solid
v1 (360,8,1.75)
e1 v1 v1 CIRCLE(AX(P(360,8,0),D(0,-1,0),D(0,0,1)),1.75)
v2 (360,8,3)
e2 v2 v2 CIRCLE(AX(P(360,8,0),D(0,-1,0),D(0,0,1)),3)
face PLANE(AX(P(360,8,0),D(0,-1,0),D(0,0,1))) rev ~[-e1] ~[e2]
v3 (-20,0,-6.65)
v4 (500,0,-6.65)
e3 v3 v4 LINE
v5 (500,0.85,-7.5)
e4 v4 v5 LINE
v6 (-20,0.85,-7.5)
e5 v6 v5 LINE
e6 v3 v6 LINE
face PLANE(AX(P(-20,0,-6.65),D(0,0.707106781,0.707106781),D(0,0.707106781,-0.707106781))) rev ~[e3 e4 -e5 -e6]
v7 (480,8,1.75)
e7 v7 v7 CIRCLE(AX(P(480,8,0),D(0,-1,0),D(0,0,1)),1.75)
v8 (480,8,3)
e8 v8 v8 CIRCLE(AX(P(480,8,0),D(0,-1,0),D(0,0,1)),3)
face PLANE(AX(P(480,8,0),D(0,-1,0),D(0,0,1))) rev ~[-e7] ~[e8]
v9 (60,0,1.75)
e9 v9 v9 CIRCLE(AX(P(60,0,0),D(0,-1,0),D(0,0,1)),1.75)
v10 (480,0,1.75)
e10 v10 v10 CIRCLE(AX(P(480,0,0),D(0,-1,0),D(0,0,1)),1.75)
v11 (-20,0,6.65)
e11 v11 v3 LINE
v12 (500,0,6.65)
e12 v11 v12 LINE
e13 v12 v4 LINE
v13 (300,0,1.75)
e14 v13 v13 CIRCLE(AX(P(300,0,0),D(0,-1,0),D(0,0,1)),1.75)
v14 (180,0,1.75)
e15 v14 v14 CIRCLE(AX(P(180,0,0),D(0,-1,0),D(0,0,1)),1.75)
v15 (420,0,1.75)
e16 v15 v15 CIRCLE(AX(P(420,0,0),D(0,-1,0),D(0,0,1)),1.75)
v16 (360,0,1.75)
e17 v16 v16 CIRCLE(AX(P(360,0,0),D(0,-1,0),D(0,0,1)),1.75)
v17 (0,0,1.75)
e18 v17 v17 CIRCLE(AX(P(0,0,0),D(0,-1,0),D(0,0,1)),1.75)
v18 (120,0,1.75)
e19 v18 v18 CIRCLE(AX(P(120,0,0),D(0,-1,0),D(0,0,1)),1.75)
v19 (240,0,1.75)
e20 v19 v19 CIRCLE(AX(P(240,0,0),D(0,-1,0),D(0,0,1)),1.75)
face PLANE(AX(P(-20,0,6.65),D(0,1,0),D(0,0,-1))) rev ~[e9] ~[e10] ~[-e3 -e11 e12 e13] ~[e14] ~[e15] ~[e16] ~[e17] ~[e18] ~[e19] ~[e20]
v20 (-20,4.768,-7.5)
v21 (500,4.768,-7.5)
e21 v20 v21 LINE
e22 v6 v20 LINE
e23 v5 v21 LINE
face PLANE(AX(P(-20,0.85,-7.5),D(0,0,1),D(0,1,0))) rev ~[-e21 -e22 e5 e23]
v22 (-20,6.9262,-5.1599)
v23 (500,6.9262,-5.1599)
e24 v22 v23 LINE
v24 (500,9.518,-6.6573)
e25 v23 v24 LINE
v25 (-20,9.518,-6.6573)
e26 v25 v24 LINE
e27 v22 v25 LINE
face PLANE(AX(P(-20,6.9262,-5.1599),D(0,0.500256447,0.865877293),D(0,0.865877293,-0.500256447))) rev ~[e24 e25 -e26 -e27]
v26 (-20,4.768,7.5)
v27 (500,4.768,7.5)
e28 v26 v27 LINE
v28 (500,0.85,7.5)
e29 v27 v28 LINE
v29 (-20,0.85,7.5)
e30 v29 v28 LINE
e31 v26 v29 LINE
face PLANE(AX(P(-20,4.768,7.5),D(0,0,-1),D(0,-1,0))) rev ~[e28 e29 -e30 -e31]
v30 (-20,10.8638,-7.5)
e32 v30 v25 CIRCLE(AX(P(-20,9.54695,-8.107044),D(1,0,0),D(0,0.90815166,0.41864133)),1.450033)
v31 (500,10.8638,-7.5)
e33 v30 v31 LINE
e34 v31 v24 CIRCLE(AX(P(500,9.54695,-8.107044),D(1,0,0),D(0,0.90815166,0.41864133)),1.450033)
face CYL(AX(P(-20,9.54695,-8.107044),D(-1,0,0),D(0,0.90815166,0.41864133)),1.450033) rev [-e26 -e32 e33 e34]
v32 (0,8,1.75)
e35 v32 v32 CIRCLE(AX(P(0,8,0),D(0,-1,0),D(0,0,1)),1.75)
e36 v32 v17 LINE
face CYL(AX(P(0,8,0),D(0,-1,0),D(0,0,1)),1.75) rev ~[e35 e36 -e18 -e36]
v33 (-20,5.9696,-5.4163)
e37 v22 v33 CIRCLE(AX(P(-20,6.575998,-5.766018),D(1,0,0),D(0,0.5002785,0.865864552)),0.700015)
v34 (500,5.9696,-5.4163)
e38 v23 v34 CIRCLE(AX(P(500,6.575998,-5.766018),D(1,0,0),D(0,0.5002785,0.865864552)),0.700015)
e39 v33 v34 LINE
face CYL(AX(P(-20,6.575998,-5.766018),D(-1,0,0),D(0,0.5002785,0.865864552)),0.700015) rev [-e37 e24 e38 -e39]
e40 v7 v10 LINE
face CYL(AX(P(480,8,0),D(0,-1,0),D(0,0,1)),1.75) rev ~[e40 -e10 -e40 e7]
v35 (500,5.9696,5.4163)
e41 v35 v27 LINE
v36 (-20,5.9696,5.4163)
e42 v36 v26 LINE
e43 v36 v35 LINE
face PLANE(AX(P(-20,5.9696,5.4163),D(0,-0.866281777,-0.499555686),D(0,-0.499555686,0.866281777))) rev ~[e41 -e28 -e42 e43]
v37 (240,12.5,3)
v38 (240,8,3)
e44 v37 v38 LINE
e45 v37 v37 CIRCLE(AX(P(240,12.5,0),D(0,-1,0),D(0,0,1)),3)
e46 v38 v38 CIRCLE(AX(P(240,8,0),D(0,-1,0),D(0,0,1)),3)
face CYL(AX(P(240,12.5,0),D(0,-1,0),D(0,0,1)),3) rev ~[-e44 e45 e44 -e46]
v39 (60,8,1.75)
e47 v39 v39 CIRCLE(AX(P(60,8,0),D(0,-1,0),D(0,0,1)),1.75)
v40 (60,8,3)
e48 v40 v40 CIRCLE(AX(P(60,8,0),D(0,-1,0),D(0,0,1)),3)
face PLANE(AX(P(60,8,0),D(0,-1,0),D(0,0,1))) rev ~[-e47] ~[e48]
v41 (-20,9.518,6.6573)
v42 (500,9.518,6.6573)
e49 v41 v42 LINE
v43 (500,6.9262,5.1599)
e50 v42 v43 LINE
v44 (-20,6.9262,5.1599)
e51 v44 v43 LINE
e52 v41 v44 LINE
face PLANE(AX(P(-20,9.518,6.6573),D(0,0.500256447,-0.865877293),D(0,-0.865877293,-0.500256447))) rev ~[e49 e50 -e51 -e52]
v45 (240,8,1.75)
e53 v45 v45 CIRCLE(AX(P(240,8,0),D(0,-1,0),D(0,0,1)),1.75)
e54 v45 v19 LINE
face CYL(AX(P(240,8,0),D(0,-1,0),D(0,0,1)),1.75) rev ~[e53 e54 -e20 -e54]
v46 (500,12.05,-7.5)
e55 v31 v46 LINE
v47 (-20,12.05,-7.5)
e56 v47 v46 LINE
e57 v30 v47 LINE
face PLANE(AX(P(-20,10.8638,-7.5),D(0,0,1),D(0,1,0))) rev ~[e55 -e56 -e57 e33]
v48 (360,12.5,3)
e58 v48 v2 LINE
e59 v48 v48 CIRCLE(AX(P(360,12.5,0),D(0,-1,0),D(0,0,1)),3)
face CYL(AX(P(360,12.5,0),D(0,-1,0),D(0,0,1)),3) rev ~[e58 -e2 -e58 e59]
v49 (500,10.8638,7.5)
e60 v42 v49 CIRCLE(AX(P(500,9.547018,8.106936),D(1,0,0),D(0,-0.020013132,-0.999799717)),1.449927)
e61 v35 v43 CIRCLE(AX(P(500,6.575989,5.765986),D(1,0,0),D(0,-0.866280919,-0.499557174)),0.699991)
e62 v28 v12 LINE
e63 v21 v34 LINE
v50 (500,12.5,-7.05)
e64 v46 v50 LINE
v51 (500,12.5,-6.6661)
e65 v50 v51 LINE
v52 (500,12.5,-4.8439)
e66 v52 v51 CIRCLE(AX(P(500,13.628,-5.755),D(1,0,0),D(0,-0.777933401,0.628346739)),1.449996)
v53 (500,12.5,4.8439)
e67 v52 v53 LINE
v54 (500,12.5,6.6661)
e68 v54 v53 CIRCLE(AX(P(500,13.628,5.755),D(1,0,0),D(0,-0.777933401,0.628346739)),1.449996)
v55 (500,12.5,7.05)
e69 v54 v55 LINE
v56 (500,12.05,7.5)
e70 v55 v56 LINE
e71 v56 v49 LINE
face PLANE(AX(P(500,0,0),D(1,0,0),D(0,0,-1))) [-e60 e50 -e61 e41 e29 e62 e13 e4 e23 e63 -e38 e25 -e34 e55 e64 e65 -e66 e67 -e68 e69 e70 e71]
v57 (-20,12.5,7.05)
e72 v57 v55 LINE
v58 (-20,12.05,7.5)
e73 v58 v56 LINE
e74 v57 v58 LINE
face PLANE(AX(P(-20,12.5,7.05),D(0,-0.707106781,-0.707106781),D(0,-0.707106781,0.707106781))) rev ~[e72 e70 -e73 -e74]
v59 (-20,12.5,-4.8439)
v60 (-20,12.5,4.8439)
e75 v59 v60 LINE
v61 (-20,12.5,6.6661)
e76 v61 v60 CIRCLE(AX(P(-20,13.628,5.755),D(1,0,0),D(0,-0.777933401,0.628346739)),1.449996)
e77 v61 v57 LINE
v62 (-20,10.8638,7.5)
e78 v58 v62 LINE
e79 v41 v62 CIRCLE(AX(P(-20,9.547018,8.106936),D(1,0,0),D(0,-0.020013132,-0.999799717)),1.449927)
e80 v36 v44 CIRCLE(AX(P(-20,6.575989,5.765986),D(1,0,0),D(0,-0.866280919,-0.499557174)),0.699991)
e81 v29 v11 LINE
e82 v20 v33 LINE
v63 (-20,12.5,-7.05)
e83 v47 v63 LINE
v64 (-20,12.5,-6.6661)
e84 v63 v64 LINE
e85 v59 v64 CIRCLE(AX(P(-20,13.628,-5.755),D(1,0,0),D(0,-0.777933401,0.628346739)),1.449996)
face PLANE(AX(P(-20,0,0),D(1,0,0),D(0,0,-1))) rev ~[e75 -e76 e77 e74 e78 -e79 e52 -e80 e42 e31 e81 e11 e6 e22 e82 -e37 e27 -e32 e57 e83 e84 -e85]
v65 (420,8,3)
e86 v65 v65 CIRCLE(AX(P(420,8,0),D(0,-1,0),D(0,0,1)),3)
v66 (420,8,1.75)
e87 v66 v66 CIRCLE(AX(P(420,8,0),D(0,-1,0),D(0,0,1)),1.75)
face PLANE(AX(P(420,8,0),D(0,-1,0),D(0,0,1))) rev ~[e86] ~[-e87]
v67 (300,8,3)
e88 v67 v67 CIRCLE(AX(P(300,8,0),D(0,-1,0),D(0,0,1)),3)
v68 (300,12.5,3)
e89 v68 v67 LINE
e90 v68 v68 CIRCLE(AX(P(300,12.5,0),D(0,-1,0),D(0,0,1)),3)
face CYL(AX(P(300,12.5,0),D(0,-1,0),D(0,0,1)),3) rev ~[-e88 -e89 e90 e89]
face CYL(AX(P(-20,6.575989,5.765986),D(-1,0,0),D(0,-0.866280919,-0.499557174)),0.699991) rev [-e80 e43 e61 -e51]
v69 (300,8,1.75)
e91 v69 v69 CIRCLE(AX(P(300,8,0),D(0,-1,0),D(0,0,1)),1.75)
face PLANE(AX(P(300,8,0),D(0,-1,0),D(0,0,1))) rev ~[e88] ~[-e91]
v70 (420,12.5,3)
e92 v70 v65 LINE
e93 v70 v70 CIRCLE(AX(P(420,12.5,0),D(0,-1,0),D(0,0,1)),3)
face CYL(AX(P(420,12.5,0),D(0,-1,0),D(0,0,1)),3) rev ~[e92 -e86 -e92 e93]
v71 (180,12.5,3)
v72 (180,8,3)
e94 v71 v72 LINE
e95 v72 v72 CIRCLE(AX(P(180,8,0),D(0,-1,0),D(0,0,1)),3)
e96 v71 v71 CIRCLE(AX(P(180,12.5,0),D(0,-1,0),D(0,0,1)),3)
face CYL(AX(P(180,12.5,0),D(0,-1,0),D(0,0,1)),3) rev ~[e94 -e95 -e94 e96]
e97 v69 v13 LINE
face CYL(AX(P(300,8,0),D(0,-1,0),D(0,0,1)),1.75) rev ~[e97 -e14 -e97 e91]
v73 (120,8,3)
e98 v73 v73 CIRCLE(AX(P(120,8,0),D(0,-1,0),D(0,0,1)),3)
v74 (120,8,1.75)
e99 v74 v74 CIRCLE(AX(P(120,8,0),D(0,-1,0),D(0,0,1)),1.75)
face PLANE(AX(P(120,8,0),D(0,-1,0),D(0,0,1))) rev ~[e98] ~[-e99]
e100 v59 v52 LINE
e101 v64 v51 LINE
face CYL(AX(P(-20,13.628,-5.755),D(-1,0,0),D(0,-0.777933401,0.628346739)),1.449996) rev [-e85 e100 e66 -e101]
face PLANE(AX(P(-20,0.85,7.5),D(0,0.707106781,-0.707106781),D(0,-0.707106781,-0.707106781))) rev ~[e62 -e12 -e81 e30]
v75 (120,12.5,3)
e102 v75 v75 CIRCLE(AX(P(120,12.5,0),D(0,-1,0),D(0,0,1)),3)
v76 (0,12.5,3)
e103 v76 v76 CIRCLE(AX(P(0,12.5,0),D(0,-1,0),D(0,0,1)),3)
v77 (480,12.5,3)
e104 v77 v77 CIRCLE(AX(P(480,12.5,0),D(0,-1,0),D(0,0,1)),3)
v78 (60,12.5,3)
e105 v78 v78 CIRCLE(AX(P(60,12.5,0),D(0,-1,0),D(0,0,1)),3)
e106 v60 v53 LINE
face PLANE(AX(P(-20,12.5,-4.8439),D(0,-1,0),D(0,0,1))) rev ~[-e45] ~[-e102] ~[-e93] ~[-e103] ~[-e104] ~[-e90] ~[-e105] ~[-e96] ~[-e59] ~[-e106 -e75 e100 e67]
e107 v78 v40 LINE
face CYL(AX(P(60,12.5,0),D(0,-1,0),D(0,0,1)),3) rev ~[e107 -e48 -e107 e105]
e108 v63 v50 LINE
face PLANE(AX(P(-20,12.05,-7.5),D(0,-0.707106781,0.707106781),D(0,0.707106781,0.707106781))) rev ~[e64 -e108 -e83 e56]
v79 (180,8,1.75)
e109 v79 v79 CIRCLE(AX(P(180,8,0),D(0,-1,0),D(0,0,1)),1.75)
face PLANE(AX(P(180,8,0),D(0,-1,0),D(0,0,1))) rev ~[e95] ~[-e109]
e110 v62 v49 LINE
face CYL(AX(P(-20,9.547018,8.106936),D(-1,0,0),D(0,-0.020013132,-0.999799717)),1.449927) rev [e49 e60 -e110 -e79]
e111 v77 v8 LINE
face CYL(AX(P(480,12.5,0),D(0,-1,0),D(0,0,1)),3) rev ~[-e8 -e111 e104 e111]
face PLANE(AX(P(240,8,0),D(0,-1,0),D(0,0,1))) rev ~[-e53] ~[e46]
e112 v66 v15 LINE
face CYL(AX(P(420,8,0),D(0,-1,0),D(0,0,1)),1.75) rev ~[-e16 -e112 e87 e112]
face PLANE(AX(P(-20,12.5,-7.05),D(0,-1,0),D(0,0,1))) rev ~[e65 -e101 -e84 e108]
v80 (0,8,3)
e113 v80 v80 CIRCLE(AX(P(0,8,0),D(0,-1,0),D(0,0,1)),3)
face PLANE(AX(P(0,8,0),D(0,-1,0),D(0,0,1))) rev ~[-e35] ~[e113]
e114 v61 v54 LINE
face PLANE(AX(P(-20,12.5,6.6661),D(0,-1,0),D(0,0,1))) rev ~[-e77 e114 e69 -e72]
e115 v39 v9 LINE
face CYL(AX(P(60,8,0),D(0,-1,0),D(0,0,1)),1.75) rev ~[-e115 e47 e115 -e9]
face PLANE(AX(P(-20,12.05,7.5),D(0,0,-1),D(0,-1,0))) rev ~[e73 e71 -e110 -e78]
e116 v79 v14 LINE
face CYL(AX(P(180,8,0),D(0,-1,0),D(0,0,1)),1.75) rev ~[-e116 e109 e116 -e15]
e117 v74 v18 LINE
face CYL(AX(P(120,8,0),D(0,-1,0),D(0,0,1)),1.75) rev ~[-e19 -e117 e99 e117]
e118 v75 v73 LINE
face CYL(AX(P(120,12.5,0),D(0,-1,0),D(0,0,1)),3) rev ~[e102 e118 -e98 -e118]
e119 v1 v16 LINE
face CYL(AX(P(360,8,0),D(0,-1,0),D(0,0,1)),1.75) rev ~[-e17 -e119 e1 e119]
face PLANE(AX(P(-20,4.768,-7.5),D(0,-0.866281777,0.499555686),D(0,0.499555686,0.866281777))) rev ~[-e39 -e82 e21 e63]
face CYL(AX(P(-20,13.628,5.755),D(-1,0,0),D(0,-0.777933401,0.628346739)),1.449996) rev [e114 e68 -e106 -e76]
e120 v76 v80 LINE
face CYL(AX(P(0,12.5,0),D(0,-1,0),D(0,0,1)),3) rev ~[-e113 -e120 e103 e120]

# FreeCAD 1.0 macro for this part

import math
import FreeCAD as App
import Part
import Sketcher

V = App.Vector
Q = App.Units.Quantity

doc = App.newDocument("Part")
body = doc.addObject("PartDesign::Body", "Body")

# Sketch on YZ plane
sketch1 = doc.addObject("Sketcher::SketchObject", "Sketch")
body.addObject(sketch1)
sketch1.AttachmentSupport = (doc.YZ_Plane, [""])
sketch1.MapMode = "FlatFace"
sketch1.AttachmentOffset = App.Placement(V(0, 0, -20), App.Rotation())
sketch1.addGeometry([
    Part.LineSegment(V(4.77, 7.5, 0), V(0.85, 7.5, 0)),  # 0
    Part.LineSegment(V(0.85, 7.5, 0), V(0, 6.65, 0)),  # 1
    Part.LineSegment(V(0, 6.65, 0), V(0, -6.65, 0)),  # 2
    Part.LineSegment(V(0, -6.65, 0), V(0.85, -7.5, 0)),  # 3
    Part.LineSegment(V(0.85, -7.5, 0), V(4.77, -7.5, 0)),  # 4
    Part.LineSegment(V(4.77, -7.5, 0), V(5.97, -5.42, 0)),  # 5
    Part.ArcOfCircle(Part.Circle(V(6.58, -5.77, 0), V(0, 0, 1), 0.7), math.radians(60), math.radians(150)),  # 6
    Part.LineSegment(V(6.93, -5.16, 0), V(9.52, -6.66, 0)),  # 7
    Part.ArcOfCircle(Part.Circle(V(9.55, -8.11, 0), V(0, 0, 1), 1.45), math.radians(25), math.radians(91)),  # 8
    Part.LineSegment(V(10.86, -7.5, 0), V(12.05, -7.5, 0)),  # 9
    Part.LineSegment(V(12.05, -7.5, 0), V(12.5, -7.05, 0)),  # 10
    Part.LineSegment(V(12.5, -7.05, 0), V(12.5, -6.67, 0)),  # 11
    Part.ArcOfCircle(Part.Circle(V(13.63, -5.75, 0), V(0, 0, 1), 1.45), math.radians(141), math.radians(219)),  # 12
    Part.LineSegment(V(12.5, -4.84, 0), V(12.5, 4.84, 0)),  # 13
    Part.ArcOfCircle(Part.Circle(V(13.63, 5.75, 0), V(0, 0, 1), 1.45), math.radians(141), math.radians(219)),  # 14
    Part.LineSegment(V(12.5, 6.67, 0), V(12.5, 7.05, 0)),  # 15
    Part.LineSegment(V(12.5, 7.05, 0), V(12.05, 7.5, 0)),  # 16
    Part.LineSegment(V(12.05, 7.5, 0), V(10.86, 7.5, 0)),  # 17
    Part.ArcOfCircle(Part.Circle(V(9.55, 8.11, 0), V(0, 0, 1), 1.45), math.radians(-91), math.radians(-25)),  # 18
    Part.LineSegment(V(9.52, 6.66, 0), V(6.93, 5.16, 0)),  # 19
    Part.ArcOfCircle(Part.Circle(V(6.58, 5.77, 0), V(0, 0, 1), 0.7), math.radians(-150), math.radians(-60)),  # 20
    Part.LineSegment(V(5.97, 5.42, 0), V(4.77, 7.5, 0)),  # 21
], False)
sketch1.addConstraint([
    Sketcher.Constraint("Coincident", 0, 2, 1, 1),
    Sketcher.Constraint("Coincident", 1, 2, 2, 1),
    Sketcher.Constraint("Coincident", 2, 2, 3, 1),
    Sketcher.Constraint("Coincident", 3, 2, 4, 1),
    Sketcher.Constraint("Coincident", 4, 2, 5, 1),
    Sketcher.Constraint("Tangent", 5, 2, 6, 2),
    Sketcher.Constraint("Tangent", 6, 1, 7, 1),
    Sketcher.Constraint("Coincident", 7, 2, 8, 2),
    Sketcher.Constraint("Coincident", 8, 1, 9, 1),
    Sketcher.Constraint("Coincident", 9, 2, 10, 1),
    Sketcher.Constraint("Coincident", 10, 2, 11, 1),
    Sketcher.Constraint("Coincident", 11, 2, 12, 2),
    Sketcher.Constraint("Coincident", 12, 1, 13, 1),
    Sketcher.Constraint("Coincident", 13, 2, 14, 2),
    Sketcher.Constraint("Coincident", 14, 1, 15, 1),
    Sketcher.Constraint("Coincident", 15, 2, 16, 1),
    Sketcher.Constraint("Coincident", 16, 2, 17, 1),
    Sketcher.Constraint("Coincident", 17, 2, 18, 2),
    Sketcher.Constraint("Coincident", 18, 1, 19, 1),
    Sketcher.Constraint("Tangent", 19, 2, 20, 2),
    Sketcher.Constraint("Tangent", 20, 1, 21, 1),
    Sketcher.Constraint("Coincident", 21, 2, 0, 1),
    Sketcher.Constraint("Horizontal", 0),
    Sketcher.Constraint("Vertical", 2),
    Sketcher.Constraint("Horizontal", 4),
    Sketcher.Constraint("Horizontal", 9),
    Sketcher.Constraint("Vertical", 11),
    Sketcher.Constraint("Vertical", 13),
    Sketcher.Constraint("Vertical", 15),
    Sketcher.Constraint("Horizontal", 17),
    Sketcher.Constraint("Equal", 8, 12),
    Sketcher.Constraint("Equal", 12, 14),
    Sketcher.Constraint("Equal", 14, 18),
    Sketcher.Constraint("Equal", 6, 20),
    Sketcher.Constraint("Symmetric", 1, 2, 2, 2, -1, 1),
    Sketcher.Constraint("Symmetric", 12, 3, 14, 3, -1),
    Sketcher.Constraint("Symmetric", 8, 3, 18, 3, -1),
    Sketcher.Constraint("Symmetric", 6, 3, 20, 3, -1),
    Sketcher.Constraint("Symmetric", 0, 2, 3, 2, -1),
    Sketcher.Constraint("Symmetric", 10, 2, 15, 2, -1),
    Sketcher.Constraint("Symmetric", 9, 2, 16, 2, -1),
    Sketcher.Constraint("Perpendicular", 1, 3),
    Sketcher.Constraint("Perpendicular", 3, 10),
    Sketcher.Constraint("Horizontal", 4, 2, 8, 1),
    Sketcher.Constraint("Vertical", 11, 2, 12, 1),
    Sketcher.Constraint("Vertical", 7, 2, 18, 1),
    Sketcher.Constraint("Vertical", 5, 2, 20, 1),
    Sketcher.Constraint("Radius", 6, Q("0.7 mm")),
    Sketcher.Constraint("Radius", 8, Q("1.45 mm")),
    Sketcher.Constraint("DistanceY", 2, 2, 2, 1, Q("13.3 mm")),
    Sketcher.Constraint("DistanceY", -1, 1, 0, 2, Q("7.5 mm")),
    Sketcher.Constraint("DistanceX", -1, 1, 10, 2, Q("12.5 mm")),
    Sketcher.Constraint("Angle", 5, Q("60.0294 deg")),
    Sketcher.Constraint("DistanceY", 20, 3, 14, 1, Q("0.9 mm")),
    Sketcher.Constraint("DistanceX", 0, 2, 0, 1, Q("3.918 mm")),
    Sketcher.Constraint("DistanceY", 11, 1, 11, 2, Q("0.384 mm")),
    Sketcher.Constraint("DistanceY", 6, 1, -1, 1, Q("5.16 mm")),
    Sketcher.Constraint("DistanceX", -1, 1, 9, 2, Q("12.05 mm")),
    Sketcher.Constraint("DistanceY", 12, 3, 14, 3, Q("11.51 mm")),
    Sketcher.Constraint("DistanceX", 7, 2, 12, 3, Q("4.11 mm")),
    Sketcher.Constraint("DistanceX", 9, 1, 9, 2, Q("1.1862 mm")),
])
pad1 = doc.addObject("PartDesign::Pad", "Pad")
body.addObject(pad1)
pad1.Profile = sketch1
pad1.Length = 520

# Sketch on XZ plane
sketch2 = doc.addObject("Sketcher::SketchObject", "Sketch001")
body.addObject(sketch2)
sketch2.AttachmentSupport = (doc.XZ_Plane, [""])
sketch2.MapMode = "FlatFace"
sketch2.AttachmentOffset = App.Placement(V(0, 0, -12.5), App.Rotation())
sketch2.addGeometry(Part.Circle(V(0, 0, 0), V(0, 0, 1), 1.8), False)
sketch2.addConstraint([
    Sketcher.Constraint("Coincident", 0, 3, -1, 1),
    Sketcher.Constraint("Diameter", 0, Q("3.5 mm")),
])
doc.recompute()
hole = doc.addObject("PartDesign::Hole", "Hole")
body.addObject(hole)
hole.Profile = sketch2
hole.ThreadType = "None"
hole.Diameter = 3.5
hole.DepthType = "Dimension"
hole.Depth = 12.5
hole.DrillPoint = "Flat"
hole.HoleCutType = "Counterbore"
hole.HoleCutDiameter = 6
hole.HoleCutDepth = 4.5
hole.Reversed = True
doc.recompute()

linearpattern = doc.addObject("PartDesign::LinearPattern", "LinearPattern")
body.addObject(linearpattern)
linearpattern.Originals = [hole]
linearpattern.Direction = (doc.X_Axis, [""])
linearpattern.Mode = "offset"
linearpattern.Offset = 60
linearpattern.Occurrences = 9
body.Tip = linearpattern

doc.recompute()
